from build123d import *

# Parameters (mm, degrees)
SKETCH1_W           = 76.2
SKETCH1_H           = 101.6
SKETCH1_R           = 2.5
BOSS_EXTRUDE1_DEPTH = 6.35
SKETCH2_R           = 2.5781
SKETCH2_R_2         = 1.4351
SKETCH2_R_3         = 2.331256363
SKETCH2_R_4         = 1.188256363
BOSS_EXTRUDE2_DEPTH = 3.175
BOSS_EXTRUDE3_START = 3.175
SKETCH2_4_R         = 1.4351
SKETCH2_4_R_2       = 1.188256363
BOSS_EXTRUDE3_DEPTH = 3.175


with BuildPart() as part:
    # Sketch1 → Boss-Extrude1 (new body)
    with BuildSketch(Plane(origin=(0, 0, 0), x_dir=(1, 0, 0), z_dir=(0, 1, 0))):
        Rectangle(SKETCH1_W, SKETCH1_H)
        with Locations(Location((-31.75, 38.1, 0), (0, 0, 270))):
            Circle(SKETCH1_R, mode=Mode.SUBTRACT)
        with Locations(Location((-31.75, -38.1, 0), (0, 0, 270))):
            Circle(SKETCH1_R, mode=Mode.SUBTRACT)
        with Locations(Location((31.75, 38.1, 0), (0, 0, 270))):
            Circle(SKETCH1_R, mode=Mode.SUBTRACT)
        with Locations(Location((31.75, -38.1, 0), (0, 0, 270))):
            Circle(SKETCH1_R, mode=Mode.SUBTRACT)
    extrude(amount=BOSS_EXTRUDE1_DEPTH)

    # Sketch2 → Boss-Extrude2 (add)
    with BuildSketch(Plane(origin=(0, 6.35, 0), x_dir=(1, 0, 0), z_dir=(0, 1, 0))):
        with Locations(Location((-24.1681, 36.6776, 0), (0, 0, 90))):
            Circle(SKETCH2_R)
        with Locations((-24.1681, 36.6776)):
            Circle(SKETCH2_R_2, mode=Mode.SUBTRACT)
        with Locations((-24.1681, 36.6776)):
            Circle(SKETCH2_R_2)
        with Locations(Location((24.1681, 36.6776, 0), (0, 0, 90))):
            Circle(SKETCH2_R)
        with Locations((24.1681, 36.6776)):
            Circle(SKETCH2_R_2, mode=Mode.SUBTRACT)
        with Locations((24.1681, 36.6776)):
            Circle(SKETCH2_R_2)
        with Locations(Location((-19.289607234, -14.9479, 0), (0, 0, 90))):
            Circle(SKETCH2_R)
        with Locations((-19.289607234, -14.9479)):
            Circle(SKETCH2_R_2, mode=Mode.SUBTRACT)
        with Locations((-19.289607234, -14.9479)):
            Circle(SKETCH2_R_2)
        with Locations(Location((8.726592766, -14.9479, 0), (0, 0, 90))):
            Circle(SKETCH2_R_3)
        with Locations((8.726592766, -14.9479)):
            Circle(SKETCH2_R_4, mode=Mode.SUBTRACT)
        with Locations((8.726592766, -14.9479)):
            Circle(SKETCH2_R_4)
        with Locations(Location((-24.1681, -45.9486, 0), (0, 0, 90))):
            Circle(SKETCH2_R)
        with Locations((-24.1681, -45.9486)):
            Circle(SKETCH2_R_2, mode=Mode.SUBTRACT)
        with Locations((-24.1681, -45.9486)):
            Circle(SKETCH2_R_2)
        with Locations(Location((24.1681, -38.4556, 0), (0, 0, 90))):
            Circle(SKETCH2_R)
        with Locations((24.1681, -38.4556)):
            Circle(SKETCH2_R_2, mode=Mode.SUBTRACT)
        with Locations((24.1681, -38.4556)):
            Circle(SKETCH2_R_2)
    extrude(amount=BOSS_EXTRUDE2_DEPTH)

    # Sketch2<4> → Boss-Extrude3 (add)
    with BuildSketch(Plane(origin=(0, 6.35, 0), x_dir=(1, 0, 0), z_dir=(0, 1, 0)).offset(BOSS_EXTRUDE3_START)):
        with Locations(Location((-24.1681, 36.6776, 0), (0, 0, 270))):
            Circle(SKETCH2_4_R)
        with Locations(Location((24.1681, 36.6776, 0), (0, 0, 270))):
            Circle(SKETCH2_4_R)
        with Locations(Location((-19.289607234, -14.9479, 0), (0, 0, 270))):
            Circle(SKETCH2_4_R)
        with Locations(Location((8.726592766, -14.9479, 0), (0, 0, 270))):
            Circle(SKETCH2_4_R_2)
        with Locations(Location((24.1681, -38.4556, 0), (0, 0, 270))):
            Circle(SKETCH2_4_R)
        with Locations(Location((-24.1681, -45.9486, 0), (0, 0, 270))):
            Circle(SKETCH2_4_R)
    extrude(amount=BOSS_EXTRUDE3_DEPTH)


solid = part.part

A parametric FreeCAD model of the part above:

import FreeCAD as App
import Part
import Sketcher
from FreeCAD import Vector
Q = App.Units.Quantity

doc = App.newDocument("Part")
body = doc.addObject("PartDesign::Body", "Body")

# Sketch on XZ plane
sketch1 = body.newObject("Sketcher::SketchObject", "Sketch")
sketch1.AttachmentSupport = (doc.getObject("XZ_Plane"), [""])
sketch1.MapMode = "FlatFace"
sketch1.addGeometry(Part.LineSegment(Vector(-38.1, -50.8, 0), Vector(-38.1, 50.8, 0)), False)
sketch1.addGeometry(Part.LineSegment(Vector(-38.1, 50.8, 0), Vector(38.1, 50.8, 0)), False)
sketch1.addGeometry(Part.LineSegment(Vector(38.1, 50.8, 0), Vector(38.1, -50.8, 0)), False)
sketch1.addGeometry(Part.LineSegment(Vector(38.1, -50.8, 0), Vector(-38.1, -50.8, 0)), False)
sketch1.addGeometry(Part.Circle(Vector(-31.8, 38.1, 0), Vector(0, 0, 1), 2.5), False)
sketch1.addGeometry(Part.Circle(Vector(31.8, 38.1, 0), Vector(0, 0, 1), 2.5), False)
sketch1.addGeometry(Part.Circle(Vector(-31.8, -38.1, 0), Vector(0, 0, 1), 2.5), False)
sketch1.addGeometry(Part.Circle(Vector(31.8, -38.1, 0), Vector(0, 0, 1), 2.5), False)
sketch1.addConstraint(Sketcher.Constraint("Coincident", 0, 2, 1, 1))
sketch1.addConstraint(Sketcher.Constraint("Coincident", 1, 2, 2, 1))
sketch1.addConstraint(Sketcher.Constraint("Coincident", 2, 2, 3, 1))
sketch1.addConstraint(Sketcher.Constraint("Coincident", 3, 2, 0, 1))
sketch1.addConstraint(Sketcher.Constraint("Vertical", 0))
sketch1.addConstraint(Sketcher.Constraint("Horizontal", 1))
sketch1.addConstraint(Sketcher.Constraint("Vertical", 2))
sketch1.addConstraint(Sketcher.Constraint("Horizontal", 3))
sketch1.addConstraint(Sketcher.Constraint("Equal", 4, 5))
sketch1.addConstraint(Sketcher.Constraint("Equal", 5, 6))
sketch1.addConstraint(Sketcher.Constraint("Equal", 6, 7))
sketch1.addConstraint(Sketcher.Constraint("Symmetric", 5, 3, 6, 3, -1, 1))
sketch1.addConstraint(Sketcher.Constraint("Symmetric", 4, 3, 7, 3, -1, 1))
sketch1.addConstraint(Sketcher.Constraint("Symmetric", 0, 2, 2, 2, -1, 1))
sketch1.addConstraint(Sketcher.Constraint("Symmetric", 4, 3, 5, 3, -2))
sketch1.addConstraint(Sketcher.Constraint("DistanceX", 1, 1, 1, 2, Q("3 in")))
sketch1.addConstraint(Sketcher.Constraint("DistanceY", 0, 1, 0, 2, Q("4 in")))
sketch1.addConstraint(Sketcher.Constraint("DistanceY", 6, 3, 4, 3, Q("3 in")))
sketch1.addConstraint(Sketcher.Constraint("DistanceX", 4, 3, 5, 3, Q("2.5 in")))
sketch1.addConstraint(Sketcher.Constraint("Diameter", 4, Q("5 mm")))
pad1 = body.newObject("PartDesign::Pad", "Pad")
pad1.Profile = sketch1
pad1.Length = Q("0.25 in")
pad1.Reversed = True

# Sketch on XZ plane
sketch2 = body.newObject("Sketcher::SketchObject", "Sketch001")
sketch2.AttachmentSupport = (doc.getObject("XZ_Plane"), [""])
sketch2.MapMode = "FlatFace"
sketch2.AttachmentOffset = App.Placement(Vector(0, 0, -0.25 * 25.4), App.Rotation())
sketch2.addGeometry(Part.Circle(Vector(-24.2, -36.7, 0), Vector(0, 0, 1), 2.6), False)
sketch2.addGeometry(Part.Circle(Vector(24.2, -36.7, 0), Vector(0, 0, 1), 2.6), False)
sketch2.addGeometry(Part.Circle(Vector(-19.3, 14.9, 0), Vector(0, 0, 1), 2.6), False)
sketch2.addGeometry(Part.Circle(Vector(8.7, 14.9, 0), Vector(0, 0, 1), 2.3), False)
sketch2.addGeometry(Part.Circle(Vector(-24.2, 45.9, 0), Vector(0, 0, 1), 2.6), False)
sketch2.addGeometry(Part.Circle(Vector(24.2, 38.5, 0), Vector(0, 0, 1), 2.6), False)
sketch2.addConstraint(Sketcher.Constraint("Equal", 0, 1))
sketch2.addConstraint(Sketcher.Constraint("Equal", 1, 2))
sketch2.addConstraint(Sketcher.Constraint("Equal", 2, 4))
sketch2.addConstraint(Sketcher.Constraint("Equal", 4, 5))
sketch2.addConstraint(Sketcher.Constraint("Symmetric", 0, 3, 1, 3, -2))
sketch2.addConstraint(Sketcher.Constraint("Horizontal", 2, 3, 3, 3))
sketch2.addConstraint(Sketcher.Constraint("Vertical", 0, 3, 4, 3))
sketch2.addConstraint(Sketcher.Constraint("Vertical", 1, 3, 5, 3))
sketch2.addConstraint(Sketcher.Constraint("Diameter", 0, Q("0.203 in")))
sketch2.addConstraint(Sketcher.Constraint("DistanceY", 0, 3, -1, 1, Q("1.444 in")))
sketch2.addConstraint(Sketcher.Constraint("DistanceY", -1, 1, 4, 3, Q("1.809 in")))
sketch2.addConstraint(Sketcher.Constraint("DistanceY", -1, 1, 5, 3, Q("1.514 in")))
sketch2.addConstraint(Sketcher.Constraint("DistanceX", 0, 3, 1, 3, Q("1.903 in")))
sketch2.addConstraint(Sketcher.Constraint("DistanceX", 2, 3, 3, 3, Q("1.103 in")))
sketch2.addConstraint(Sketcher.Constraint("Diameter", 3, Q("4.662513 mm")))
sketch2.addConstraint(Sketcher.Constraint("DistanceY", -1, 1, 2, 3, Q("0.5885 in")))
sketch2.addConstraint(Sketcher.Constraint("DistanceX", 2, 3, -1, 1, Q("19.289607 mm")))
pad2 = body.newObject("PartDesign::Pad", "Pad001")
pad2.Profile = sketch2
pad2.Length = Q("0.125 in")
pad2.Reversed = True

# Sketch on XZ plane
sketch3 = body.newObject("Sketcher::SketchObject", "Sketch002")
sketch3.AttachmentSupport = (doc.getObject("XZ_Plane"), [""])
sketch3.MapMode = "FlatFace"
sketch3.AttachmentOffset = App.Placement(Vector(0, 0, -0.375 * 25.4), App.Rotation())
sketch3.addGeometry(Part.Circle(Vector(-24.2, -36.7, 0), Vector(0, 0, 1), 1.4), False)
sketch3.addGeometry(Part.Circle(Vector(24.2, -36.7, 0), Vector(0, 0, 1), 1.4), False)
sketch3.addGeometry(Part.Circle(Vector(-19.3, 14.9, 0), Vector(0, 0, 1), 1.4), False)
sketch3.addGeometry(Part.Circle(Vector(8.7, 14.9, 0), Vector(0, 0, 1), 1.2), False)
sketch3.addGeometry(Part.Circle(Vector(24.2, 38.5, 0), Vector(0, 0, 1), 1.4), False)
sketch3.addGeometry(Part.Circle(Vector(-24.2, 45.9, 0), Vector(0, 0, 1), 1.4), False)
sketch3.addConstraint(Sketcher.Constraint("Equal", 0, 1))
sketch3.addConstraint(Sketcher.Constraint("Equal", 1, 2))
sketch3.addConstraint(Sketcher.Constraint("Equal", 2, 4))
sketch3.addConstraint(Sketcher.Constraint("Equal", 4, 5))
sketch3.addConstraint(Sketcher.Constraint("Symmetric", 0, 3, 1, 3, -2))
sketch3.addConstraint(Sketcher.Constraint("Horizontal", 2, 3, 3, 3))
sketch3.addConstraint(Sketcher.Constraint("Vertical", 1, 3, 4, 3))
sketch3.addConstraint(Sketcher.Constraint("Vertical", 0, 3, 5, 3))
sketch3.addConstraint(Sketcher.Constraint("Diameter", 0, Q("0.113 in")))
sketch3.addConstraint(Sketcher.Constraint("DistanceY", 0, 3, -1, 1, Q("1.444 in")))
sketch3.addConstraint(Sketcher.Constraint("DistanceY", -1, 1, 4, 3, Q("1.514 in")))
sketch3.addConstraint(Sketcher.Constraint("DistanceY", -1, 1, 5, 3, Q("1.809 in")))
sketch3.addConstraint(Sketcher.Constraint("DistanceX", 0, 3, 1, 3, Q("1.903 in")))
sketch3.addConstraint(Sketcher.Constraint("DistanceX", 2, 3, 3, 3, Q("1.103 in")))
sketch3.addConstraint(Sketcher.Constraint("Diameter", 3, Q("2.376513 mm")))
sketch3.addConstraint(Sketcher.Constraint("DistanceY", -1, 1, 2, 3, Q("0.5885 in")))
sketch3.addConstraint(Sketcher.Constraint("DistanceX", 2, 3, -1, 1, Q("19.289607 mm")))
pad3 = body.newObject("PartDesign::Pad", "Pad002")
pad3.Profile = sketch3
pad3.Length = Q("0.125 in")
pad3.Reversed = True

doc.recompute()
